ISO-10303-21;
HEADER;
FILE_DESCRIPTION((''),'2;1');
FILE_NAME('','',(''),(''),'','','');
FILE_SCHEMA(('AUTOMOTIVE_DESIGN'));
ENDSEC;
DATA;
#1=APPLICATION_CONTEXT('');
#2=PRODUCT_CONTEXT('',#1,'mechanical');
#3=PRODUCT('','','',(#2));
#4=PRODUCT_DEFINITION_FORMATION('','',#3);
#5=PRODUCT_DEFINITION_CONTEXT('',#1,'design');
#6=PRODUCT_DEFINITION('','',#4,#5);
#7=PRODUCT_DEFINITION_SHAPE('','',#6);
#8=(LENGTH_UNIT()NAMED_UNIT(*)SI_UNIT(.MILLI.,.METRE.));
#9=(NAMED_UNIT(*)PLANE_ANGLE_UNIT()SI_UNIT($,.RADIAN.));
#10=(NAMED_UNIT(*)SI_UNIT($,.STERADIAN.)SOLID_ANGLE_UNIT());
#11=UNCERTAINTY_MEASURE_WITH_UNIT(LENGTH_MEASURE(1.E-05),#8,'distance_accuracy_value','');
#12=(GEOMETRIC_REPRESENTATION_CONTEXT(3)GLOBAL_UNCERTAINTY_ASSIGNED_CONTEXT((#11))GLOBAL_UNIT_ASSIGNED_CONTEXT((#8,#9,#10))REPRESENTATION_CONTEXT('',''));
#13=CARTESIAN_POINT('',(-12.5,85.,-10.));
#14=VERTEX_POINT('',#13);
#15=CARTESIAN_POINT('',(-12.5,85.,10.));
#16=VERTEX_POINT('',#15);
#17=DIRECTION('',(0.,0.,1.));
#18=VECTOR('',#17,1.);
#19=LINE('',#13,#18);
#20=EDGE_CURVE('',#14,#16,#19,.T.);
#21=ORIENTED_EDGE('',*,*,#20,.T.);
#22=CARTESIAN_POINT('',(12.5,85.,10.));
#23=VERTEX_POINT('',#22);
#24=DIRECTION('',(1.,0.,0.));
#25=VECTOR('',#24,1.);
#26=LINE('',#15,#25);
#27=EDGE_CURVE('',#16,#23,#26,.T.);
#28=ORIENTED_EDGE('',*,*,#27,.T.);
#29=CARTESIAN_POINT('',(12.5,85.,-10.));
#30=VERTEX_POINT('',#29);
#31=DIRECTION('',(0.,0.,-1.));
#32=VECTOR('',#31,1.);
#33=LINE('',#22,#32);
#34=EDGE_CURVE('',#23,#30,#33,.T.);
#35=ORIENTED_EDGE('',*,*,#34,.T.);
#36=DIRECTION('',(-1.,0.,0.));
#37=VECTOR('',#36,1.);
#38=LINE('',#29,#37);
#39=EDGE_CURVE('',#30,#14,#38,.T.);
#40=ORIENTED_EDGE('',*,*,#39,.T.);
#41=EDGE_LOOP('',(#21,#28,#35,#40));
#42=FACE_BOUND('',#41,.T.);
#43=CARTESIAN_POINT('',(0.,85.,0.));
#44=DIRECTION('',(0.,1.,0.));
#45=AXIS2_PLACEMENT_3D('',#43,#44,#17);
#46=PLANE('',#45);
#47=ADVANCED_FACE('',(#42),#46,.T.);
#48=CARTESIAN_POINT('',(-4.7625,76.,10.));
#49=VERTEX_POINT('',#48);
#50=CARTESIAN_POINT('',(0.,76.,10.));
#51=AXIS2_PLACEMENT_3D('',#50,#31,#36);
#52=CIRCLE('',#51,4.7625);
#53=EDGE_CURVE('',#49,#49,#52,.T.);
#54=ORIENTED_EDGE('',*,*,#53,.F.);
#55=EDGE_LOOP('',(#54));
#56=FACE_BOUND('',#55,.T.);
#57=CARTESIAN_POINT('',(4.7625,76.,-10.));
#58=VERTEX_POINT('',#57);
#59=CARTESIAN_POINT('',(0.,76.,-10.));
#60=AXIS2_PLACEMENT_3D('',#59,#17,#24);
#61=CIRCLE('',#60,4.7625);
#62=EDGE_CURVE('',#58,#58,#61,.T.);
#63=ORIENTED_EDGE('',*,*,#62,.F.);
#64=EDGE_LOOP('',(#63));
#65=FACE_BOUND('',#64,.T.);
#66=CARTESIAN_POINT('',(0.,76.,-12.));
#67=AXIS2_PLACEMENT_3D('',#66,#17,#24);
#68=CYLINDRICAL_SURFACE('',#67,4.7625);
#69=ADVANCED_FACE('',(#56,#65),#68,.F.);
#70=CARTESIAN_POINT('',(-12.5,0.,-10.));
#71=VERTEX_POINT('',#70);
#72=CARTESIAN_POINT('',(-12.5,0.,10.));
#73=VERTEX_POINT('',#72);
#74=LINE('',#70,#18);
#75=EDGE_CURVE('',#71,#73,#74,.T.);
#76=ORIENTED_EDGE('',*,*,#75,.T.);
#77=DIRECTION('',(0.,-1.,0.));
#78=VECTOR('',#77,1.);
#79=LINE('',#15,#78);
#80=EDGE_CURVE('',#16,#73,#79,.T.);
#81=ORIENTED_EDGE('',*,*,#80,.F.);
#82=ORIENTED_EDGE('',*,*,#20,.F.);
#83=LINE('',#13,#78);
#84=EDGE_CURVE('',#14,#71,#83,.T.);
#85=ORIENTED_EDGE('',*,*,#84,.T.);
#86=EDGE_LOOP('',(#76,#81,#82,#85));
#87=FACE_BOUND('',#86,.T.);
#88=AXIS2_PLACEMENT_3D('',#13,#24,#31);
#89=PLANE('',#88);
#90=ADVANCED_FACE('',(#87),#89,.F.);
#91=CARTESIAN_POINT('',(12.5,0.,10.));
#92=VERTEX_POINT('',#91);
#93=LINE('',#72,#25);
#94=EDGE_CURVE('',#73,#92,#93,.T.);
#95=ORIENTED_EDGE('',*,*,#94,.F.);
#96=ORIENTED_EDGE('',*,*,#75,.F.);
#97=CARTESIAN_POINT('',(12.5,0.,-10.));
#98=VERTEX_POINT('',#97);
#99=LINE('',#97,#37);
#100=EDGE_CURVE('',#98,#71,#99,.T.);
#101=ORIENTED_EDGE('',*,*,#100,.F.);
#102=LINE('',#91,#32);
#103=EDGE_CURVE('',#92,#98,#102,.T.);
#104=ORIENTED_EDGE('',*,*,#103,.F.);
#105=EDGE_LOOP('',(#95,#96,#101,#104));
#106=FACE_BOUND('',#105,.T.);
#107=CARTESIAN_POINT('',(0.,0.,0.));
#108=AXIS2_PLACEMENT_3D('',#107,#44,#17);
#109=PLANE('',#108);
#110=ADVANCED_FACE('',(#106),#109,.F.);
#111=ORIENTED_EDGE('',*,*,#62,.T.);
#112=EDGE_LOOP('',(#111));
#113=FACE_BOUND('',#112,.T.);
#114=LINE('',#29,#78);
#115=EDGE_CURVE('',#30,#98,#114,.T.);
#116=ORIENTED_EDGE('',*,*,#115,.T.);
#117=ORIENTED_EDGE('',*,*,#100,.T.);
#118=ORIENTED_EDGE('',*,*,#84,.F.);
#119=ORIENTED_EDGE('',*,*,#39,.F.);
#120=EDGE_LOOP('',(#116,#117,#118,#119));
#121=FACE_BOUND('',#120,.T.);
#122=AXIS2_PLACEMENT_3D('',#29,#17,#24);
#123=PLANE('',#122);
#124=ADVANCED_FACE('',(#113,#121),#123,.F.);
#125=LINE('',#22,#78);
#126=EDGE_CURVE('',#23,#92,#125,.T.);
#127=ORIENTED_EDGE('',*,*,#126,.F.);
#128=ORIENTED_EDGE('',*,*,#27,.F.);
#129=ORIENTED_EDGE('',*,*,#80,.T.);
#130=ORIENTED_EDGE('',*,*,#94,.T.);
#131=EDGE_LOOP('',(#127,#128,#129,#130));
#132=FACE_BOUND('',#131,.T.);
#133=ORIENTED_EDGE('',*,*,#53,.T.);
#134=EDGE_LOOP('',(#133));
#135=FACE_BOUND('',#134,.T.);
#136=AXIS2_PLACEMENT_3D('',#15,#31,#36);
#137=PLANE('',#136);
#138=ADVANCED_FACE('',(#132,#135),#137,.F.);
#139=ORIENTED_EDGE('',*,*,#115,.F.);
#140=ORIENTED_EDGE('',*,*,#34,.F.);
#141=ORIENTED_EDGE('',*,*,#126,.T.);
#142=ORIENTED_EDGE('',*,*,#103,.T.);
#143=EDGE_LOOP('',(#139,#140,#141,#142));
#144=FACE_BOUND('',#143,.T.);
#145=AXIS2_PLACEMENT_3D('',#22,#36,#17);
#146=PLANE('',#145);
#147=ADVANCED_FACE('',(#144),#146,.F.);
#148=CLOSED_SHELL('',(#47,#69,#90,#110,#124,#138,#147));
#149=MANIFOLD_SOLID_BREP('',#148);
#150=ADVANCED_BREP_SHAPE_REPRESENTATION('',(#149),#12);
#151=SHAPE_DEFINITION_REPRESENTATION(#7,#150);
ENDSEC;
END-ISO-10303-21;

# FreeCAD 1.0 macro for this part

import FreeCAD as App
import Part
import Sketcher
from FreeCAD import Vector


def add_polygon(sketch, points):
    """Adds a closed chain of lines whose ends are joined by coincident constraints."""
    first, n = sketch.GeometryCount, len(points)
    for a, b in zip(points, points[1:] + points[:1]):
        sketch.addGeometry(Part.LineSegment(App.Vector(*a, 0), App.Vector(*b, 0)), False)
    for i in range(n):
        sketch.addConstraint(Sketcher.Constraint("Coincident", first + i, 2, first + (i + 1) % n, 1))

doc = App.newDocument("Part")
params = doc.addObject("Spreadsheet::Sheet", "Params")
for row, (alias, value) in enumerate([
    ("sketch1_width", "25 mm"),
    ("sketch1_height", "20 mm"),
    ("pad1_length", "85 mm"),
    ("pocket1_length", "24 mm"),
], start=1):
    params.set(f"A{row}", alias)
    params.set(f"B{row}", "=" + value)
    params.setAlias(f"B{row}", alias)

body = doc.addObject("PartDesign::Body", "Body")

sketch1 = body.newObject("Sketcher::SketchObject", "Sketch")
sketch1.AttachmentSupport = (doc.getObject("XZ_Plane"), [""])
sketch1.MapMode = "FlatFace"
add_polygon(sketch1, [(-12, -10), (-12, 10), (12, 10), (12, -10)])
sketch1.addConstraint([
    Sketcher.Constraint("Vertical", 0),
    Sketcher.Constraint("Horizontal", 1),
    Sketcher.Constraint("Vertical", 2),
    Sketcher.Constraint("Horizontal", 3),
    Sketcher.Constraint("Symmetric", 0, 2, 2, 2, -1, 1),
    Sketcher.Constraint("DistanceX", 1, 1, 1, 2, 25.0),
    Sketcher.Constraint("DistanceY", 0, 1, 0, 2, 20.0),
])
sketch1.setExpression("Constraints[9]", "Params.sketch1_width")
sketch1.setExpression("Constraints[10]", "Params.sketch1_height")
pad1 = body.newObject("PartDesign::Pad", "Pad")
pad1.Profile = sketch1
pad1.setExpression("Length", "Params.pad1_length")
pad1.Reversed = True

sketch2 = body.newObject("Sketcher::SketchObject", "Sketch001")
sketch2.AttachmentSupport = (doc.getObject("XY_Plane"), [""])
sketch2.MapMode = "FlatFace"
sketch2.addGeometry(Part.Circle(Vector(0, 76, 0), Vector(0, 0, 1), 4.8), False)
sketch2.addConstraint([
    Sketcher.Constraint("PointOnObject", 0, 3, -2),
    Sketcher.Constraint("Diameter", 0, 9.525),
    Sketcher.Constraint("DistanceY", -1, 1, 0, 3, 76.0),
])
pocket1 = body.newObject("PartDesign::Pocket", "Pocket")
pocket1.Profile = sketch2
pocket1.setExpression("Length", "Params.pocket1_length")
pocket1.Midplane = True

doc.recompute()
